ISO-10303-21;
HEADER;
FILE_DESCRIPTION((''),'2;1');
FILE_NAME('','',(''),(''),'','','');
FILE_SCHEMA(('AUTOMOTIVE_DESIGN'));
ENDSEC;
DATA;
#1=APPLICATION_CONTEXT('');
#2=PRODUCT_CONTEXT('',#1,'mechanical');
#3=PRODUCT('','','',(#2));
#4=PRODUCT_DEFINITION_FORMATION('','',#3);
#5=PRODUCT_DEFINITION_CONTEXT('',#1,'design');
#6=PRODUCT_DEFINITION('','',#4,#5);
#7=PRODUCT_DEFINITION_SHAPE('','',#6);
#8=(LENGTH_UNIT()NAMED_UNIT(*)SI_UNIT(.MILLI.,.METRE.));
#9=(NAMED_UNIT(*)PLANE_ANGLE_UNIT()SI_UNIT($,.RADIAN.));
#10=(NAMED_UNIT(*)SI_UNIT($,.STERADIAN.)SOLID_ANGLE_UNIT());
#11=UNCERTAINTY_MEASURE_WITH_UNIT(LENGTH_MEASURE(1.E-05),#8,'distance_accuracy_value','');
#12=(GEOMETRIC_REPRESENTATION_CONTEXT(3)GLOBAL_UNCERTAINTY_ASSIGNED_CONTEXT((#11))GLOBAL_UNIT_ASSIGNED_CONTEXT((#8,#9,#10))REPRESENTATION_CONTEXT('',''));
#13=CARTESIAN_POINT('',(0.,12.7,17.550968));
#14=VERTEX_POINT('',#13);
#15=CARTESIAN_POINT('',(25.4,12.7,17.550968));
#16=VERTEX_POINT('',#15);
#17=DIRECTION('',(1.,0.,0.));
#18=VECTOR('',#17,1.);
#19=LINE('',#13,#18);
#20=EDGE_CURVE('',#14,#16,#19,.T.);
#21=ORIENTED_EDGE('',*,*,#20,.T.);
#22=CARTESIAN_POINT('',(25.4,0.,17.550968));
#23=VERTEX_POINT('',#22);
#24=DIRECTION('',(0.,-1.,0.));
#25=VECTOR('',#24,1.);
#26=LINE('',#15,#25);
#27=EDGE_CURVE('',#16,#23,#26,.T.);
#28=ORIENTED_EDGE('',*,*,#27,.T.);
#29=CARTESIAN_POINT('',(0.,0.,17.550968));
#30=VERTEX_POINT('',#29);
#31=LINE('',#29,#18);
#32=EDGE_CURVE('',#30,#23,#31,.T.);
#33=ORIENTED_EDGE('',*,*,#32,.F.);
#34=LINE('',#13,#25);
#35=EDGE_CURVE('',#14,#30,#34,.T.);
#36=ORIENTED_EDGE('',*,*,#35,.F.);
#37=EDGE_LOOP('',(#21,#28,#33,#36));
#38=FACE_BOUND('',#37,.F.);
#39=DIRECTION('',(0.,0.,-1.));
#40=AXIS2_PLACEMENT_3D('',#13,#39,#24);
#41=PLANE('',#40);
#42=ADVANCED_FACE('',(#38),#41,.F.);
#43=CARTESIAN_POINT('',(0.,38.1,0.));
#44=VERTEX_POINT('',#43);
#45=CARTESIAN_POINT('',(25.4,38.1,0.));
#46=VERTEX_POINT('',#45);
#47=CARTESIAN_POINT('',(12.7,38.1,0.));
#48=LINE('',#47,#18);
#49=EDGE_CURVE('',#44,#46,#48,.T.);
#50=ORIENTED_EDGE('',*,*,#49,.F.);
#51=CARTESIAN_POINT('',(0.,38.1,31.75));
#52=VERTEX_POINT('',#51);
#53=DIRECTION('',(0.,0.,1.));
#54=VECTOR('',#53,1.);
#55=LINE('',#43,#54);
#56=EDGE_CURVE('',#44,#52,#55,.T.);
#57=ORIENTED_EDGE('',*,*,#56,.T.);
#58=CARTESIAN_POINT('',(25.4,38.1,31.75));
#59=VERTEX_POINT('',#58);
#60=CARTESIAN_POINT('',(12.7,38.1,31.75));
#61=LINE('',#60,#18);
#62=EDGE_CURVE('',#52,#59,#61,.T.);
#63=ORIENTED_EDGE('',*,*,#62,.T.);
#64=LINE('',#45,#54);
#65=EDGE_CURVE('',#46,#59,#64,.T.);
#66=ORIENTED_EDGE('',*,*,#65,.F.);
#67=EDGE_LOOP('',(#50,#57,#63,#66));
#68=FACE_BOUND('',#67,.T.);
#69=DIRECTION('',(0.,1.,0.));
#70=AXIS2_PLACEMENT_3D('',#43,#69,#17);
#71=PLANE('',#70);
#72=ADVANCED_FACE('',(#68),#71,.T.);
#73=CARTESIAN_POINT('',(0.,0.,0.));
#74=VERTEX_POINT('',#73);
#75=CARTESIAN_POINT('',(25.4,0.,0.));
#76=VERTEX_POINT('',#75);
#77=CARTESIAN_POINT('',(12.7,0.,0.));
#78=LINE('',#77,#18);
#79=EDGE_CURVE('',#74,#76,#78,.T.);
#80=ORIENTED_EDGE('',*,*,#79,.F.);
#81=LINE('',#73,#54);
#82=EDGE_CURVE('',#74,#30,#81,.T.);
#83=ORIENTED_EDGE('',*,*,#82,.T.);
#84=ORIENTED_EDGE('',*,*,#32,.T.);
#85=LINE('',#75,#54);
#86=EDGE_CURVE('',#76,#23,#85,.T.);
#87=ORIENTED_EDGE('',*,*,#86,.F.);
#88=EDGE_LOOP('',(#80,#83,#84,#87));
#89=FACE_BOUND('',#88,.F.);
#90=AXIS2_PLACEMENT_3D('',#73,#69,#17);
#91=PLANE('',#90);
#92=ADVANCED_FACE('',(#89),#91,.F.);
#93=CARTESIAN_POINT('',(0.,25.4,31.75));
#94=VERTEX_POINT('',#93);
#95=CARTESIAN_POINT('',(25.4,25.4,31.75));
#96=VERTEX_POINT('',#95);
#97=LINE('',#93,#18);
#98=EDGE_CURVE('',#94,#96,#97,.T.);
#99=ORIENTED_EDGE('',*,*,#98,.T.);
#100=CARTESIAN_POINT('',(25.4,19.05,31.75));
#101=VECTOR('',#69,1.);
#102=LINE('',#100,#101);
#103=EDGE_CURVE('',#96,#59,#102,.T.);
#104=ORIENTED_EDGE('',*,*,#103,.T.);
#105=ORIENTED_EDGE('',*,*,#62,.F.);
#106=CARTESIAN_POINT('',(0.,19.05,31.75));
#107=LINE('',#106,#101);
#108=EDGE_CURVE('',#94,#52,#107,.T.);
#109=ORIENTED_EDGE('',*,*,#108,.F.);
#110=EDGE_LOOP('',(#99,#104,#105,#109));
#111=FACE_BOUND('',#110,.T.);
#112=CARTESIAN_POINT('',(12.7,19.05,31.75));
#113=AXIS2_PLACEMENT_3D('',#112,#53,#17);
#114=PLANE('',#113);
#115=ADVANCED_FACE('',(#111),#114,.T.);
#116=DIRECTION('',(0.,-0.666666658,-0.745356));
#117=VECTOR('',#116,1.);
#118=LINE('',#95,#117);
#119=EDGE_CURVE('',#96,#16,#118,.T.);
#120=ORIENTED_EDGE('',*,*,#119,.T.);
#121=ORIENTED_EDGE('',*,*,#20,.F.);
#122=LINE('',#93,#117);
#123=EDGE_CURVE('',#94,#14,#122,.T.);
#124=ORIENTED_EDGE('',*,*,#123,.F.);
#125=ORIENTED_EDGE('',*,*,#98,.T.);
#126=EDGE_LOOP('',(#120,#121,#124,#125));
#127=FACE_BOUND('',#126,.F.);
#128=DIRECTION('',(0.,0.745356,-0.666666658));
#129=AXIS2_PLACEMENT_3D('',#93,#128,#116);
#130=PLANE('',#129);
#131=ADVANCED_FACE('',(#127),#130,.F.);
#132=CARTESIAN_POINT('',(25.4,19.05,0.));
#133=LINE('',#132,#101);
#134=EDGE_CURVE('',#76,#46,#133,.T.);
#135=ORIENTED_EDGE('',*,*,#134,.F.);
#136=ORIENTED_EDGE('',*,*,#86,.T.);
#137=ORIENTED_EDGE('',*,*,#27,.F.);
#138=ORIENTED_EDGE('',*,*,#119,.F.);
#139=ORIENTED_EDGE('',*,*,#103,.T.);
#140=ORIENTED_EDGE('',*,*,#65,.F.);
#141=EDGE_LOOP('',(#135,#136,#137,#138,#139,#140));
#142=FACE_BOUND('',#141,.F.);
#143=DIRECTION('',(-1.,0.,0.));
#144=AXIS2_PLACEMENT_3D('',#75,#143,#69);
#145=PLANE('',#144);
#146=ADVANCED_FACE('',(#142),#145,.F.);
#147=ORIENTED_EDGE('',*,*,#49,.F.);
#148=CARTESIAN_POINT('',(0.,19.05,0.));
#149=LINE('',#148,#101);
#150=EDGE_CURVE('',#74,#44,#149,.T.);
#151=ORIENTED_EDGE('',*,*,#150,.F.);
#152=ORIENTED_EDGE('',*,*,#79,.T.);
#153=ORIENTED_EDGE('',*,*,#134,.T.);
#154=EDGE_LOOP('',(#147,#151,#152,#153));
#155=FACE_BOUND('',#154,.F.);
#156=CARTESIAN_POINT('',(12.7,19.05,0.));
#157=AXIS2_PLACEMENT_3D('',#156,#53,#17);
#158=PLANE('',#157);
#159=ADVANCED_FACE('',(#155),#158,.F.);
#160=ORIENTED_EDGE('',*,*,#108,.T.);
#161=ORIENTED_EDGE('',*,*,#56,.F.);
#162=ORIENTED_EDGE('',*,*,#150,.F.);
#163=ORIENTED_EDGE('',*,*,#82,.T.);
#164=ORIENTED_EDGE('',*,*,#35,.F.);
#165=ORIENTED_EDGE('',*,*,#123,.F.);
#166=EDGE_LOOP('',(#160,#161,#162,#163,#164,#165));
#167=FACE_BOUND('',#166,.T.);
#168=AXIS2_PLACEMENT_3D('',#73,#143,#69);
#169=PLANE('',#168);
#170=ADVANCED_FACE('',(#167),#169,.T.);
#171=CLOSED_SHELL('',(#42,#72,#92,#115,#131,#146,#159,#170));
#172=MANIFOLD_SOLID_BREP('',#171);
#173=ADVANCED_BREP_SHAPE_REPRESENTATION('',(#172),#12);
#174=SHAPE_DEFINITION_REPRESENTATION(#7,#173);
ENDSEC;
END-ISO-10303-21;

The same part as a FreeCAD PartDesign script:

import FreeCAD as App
import Part
import Sketcher

V = App.Vector
Q = App.Units.Quantity


def add_polygon(sketch, points):
    """Adds a closed chain of lines whose ends are joined by coincident constraints."""
    first, n = sketch.GeometryCount, len(points)
    for a, b in zip(points, points[1:] + points[:1]):
        sketch.addGeometry(Part.LineSegment(App.Vector(*a, 0), App.Vector(*b, 0)), False)
    for i in range(n):
        sketch.addConstraint(Sketcher.Constraint("Coincident", first + i, 2, first + (i + 1) % n, 1))

doc = App.newDocument("Part")
body = doc.addObject("PartDesign::Body", "Body")

sketch1 = body.newObject("Sketcher::SketchObject", "Sketch")
sketch1.AttachmentSupport = (doc.getObject("XY_Plane"), [""])
sketch1.MapMode = "FlatFace"
add_polygon(sketch1, [(0, 38.1), (0, 0), (25.4, 0), (25.4, 38.1)])
sketch1.addConstraint(Sketcher.Constraint("Vertical", 0))
sketch1.addConstraint(Sketcher.Constraint("Horizontal", 1))
sketch1.addConstraint(Sketcher.Constraint("Vertical", 2))
sketch1.addConstraint(Sketcher.Constraint("Horizontal", 3))
sketch1.addConstraint(Sketcher.Constraint("Coincident", 0, 2, -1, 1))
sketch1.addConstraint(Sketcher.Constraint("DistanceX", 1, 1, 1, 2, Q("1 in")))
sketch1.addConstraint(Sketcher.Constraint("DistanceY", 0, 2, 0, 1, Q("1.5 in")))
pad1 = body.newObject("PartDesign::Pad", "Pad")
pad1.Profile = sketch1
pad1.Length = Q("1.25 in")

sketch2 = body.newObject("Sketcher::SketchObject", "Sketch001")
sketch2.AttachmentSupport = (doc.getObject("YZ_Plane"), [""])
sketch2.MapMode = "FlatFace"
add_polygon(sketch2, [(0, 31.75), (25.4, 31.75), (12.7, 17.550968), (0, 17.550968)])
sketch2.addConstraint(Sketcher.Constraint("Horizontal", 0))
sketch2.addConstraint(Sketcher.Constraint("Horizontal", 2))
sketch2.addConstraint(Sketcher.Constraint("Vertical", 3))
sketch2.addConstraint(Sketcher.Constraint("PointOnObject", 2, 2, -2))
sketch2.addConstraint(Sketcher.Constraint("DistanceX", 0, 1, 0, 2, Q("1 in")))
sketch2.addConstraint(Sketcher.Constraint("DistanceX", 2, 2, 2, 1, Q("0.5 in")))
sketch2.addConstraint(Sketcher.Constraint("Distance", 1, Q("0.75 in")))
sketch2.addConstraint(Sketcher.Constraint("DistanceY", -1, 1, 0, 2, Q("1.25 in")))
pocket1 = body.newObject("PartDesign::Pocket", "Pocket")
pocket1.Profile = sketch2
pocket1.Length = Q("1 in")
pocket1.Reversed = True

doc.recompute()
